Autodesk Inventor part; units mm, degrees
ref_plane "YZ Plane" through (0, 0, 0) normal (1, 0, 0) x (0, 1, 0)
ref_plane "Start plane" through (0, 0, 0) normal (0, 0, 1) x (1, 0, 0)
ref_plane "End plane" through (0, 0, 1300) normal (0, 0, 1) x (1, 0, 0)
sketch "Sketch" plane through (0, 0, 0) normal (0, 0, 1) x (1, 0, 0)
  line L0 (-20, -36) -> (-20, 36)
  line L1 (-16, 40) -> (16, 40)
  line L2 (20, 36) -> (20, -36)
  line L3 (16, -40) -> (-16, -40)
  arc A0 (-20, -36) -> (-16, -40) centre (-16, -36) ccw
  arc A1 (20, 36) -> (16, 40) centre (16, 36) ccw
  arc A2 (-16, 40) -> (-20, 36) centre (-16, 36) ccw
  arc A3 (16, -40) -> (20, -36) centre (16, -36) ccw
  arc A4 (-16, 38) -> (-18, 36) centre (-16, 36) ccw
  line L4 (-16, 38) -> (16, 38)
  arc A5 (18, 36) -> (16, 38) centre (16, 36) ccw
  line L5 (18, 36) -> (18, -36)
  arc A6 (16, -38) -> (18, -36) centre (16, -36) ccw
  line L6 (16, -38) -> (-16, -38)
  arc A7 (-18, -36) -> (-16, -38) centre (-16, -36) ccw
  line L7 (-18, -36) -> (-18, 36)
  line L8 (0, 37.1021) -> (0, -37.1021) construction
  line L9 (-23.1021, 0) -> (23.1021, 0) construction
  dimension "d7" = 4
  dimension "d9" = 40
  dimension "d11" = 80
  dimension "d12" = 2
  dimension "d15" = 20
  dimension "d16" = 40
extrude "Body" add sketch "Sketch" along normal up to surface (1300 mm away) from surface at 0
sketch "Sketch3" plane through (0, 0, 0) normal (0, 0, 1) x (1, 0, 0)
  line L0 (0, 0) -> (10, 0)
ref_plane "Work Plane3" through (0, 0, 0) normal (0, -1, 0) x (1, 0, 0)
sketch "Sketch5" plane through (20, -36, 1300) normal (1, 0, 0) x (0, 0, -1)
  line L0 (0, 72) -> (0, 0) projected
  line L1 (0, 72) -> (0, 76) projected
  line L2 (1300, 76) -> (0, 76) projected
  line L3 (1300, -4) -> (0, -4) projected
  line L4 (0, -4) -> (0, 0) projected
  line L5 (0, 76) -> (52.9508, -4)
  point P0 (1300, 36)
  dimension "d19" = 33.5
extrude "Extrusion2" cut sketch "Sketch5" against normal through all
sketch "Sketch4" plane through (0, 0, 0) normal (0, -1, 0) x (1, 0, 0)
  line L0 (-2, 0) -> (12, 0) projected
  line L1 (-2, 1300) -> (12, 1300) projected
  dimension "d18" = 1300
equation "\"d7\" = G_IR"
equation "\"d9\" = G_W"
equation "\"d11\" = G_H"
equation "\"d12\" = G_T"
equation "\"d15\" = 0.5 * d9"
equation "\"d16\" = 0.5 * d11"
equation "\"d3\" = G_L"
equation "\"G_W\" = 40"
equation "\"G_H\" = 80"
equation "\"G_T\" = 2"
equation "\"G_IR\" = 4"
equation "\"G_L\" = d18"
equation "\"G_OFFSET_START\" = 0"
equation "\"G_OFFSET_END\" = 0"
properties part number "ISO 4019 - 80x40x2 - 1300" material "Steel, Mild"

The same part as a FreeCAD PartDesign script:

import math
import FreeCAD as App
import Part
import Sketcher
from FreeCAD import Vector
Q = App.Units.Quantity


def add_polygon(sketch, points):
    """Adds a closed chain of lines whose ends are joined by coincident constraints."""
    first, n = sketch.GeometryCount, len(points)
    for a, b in zip(points, points[1:] + points[:1]):
        sketch.addGeometry(Part.LineSegment(App.Vector(*a, 0), App.Vector(*b, 0)), False)
    for i in range(n):
        sketch.addConstraint(Sketcher.Constraint("Coincident", first + i, 2, first + (i + 1) % n, 1))

doc = App.newDocument("Part")
params = doc.addObject("Spreadsheet::Sheet", "Params")
for row, (alias, value) in enumerate([
    ("sketch1_radius", "4 mm"),
    ("sketch1_radius2", "2 mm"),
    ("pad1_length", "1300 mm"),
    ("sketch2_width", "80 mm"),
], start=1):
    params.set(f"A{row}", alias)
    params.set(f"B{row}", "=" + value)
    params.setAlias(f"B{row}", alias)

body = doc.addObject("PartDesign::Body", "Body")

# Sketch on XY plane
sketch1 = body.newObject("Sketcher::SketchObject", "Sketch")
sketch1.AttachmentSupport = (doc.getObject("XY_Plane"), [""])
sketch1.MapMode = "FlatFace"
sketch1.addGeometry([
    Part.LineSegment(Vector(-20, 36, 0), Vector(-20, -36, 0)),  # 0
    Part.ArcOfCircle(Part.Circle(Vector(-16, -36, 0), Vector(0, 0, 1), 4), math.radians(180), math.radians(270)),  # 1
    Part.LineSegment(Vector(-16, -40, 0), Vector(16, -40, 0)),  # 2
    Part.ArcOfCircle(Part.Circle(Vector(16, -36, 0), Vector(0, 0, 1), 4), math.radians(-90), math.radians(0)),  # 3
    Part.LineSegment(Vector(20, -36, 0), Vector(20, 36, 0)),  # 4
    Part.ArcOfCircle(Part.Circle(Vector(16, 36, 0), Vector(0, 0, 1), 4), math.radians(0), math.radians(90)),  # 5
    Part.LineSegment(Vector(16, 40, 0), Vector(-16, 40, 0)),  # 6
    Part.ArcOfCircle(Part.Circle(Vector(-16, 36, 0), Vector(0, 0, 1), 4), math.radians(90), math.radians(180)),  # 7
    Part.ArcOfCircle(Part.Circle(Vector(-16, 36, 0), Vector(0, 0, 1), 2), math.radians(90), math.radians(180)),  # 8
    Part.LineSegment(Vector(-16, 38, 0), Vector(16, 38, 0)),  # 9
    Part.ArcOfCircle(Part.Circle(Vector(16, 36, 0), Vector(0, 0, 1), 2), math.radians(0), math.radians(90)),  # 10
    Part.LineSegment(Vector(18, 36, 0), Vector(18, -36, 0)),  # 11
    Part.ArcOfCircle(Part.Circle(Vector(16, -36, 0), Vector(0, 0, 1), 2), math.radians(-90), math.radians(0)),  # 12
    Part.LineSegment(Vector(16, -38, 0), Vector(-16, -38, 0)),  # 13
    Part.ArcOfCircle(Part.Circle(Vector(-16, -36, 0), Vector(0, 0, 1), 2), math.radians(180), math.radians(270)),  # 14
    Part.LineSegment(Vector(-18, -36, 0), Vector(-18, 36, 0)),  # 15
], False)
sketch1.addConstraint([
    Sketcher.Constraint("Tangent", 0, 2, 1, 1),
    Sketcher.Constraint("Tangent", 1, 2, 2, 1),
    Sketcher.Constraint("Tangent", 2, 2, 3, 1),
    Sketcher.Constraint("Tangent", 3, 2, 4, 1),
    Sketcher.Constraint("Tangent", 4, 2, 5, 1),
    Sketcher.Constraint("Tangent", 5, 2, 6, 1),
    Sketcher.Constraint("Tangent", 6, 2, 7, 1),
    Sketcher.Constraint("Tangent", 7, 2, 0, 1),
    Sketcher.Constraint("Tangent", 8, 1, 9, 1),
    Sketcher.Constraint("Tangent", 9, 2, 10, 2),
    Sketcher.Constraint("Tangent", 10, 1, 11, 1),
    Sketcher.Constraint("Tangent", 11, 2, 12, 2),
    Sketcher.Constraint("Tangent", 12, 1, 13, 1),
    Sketcher.Constraint("Tangent", 13, 2, 14, 2),
    Sketcher.Constraint("Tangent", 14, 1, 15, 1),
    Sketcher.Constraint("Tangent", 15, 2, 8, 2),
    Sketcher.Constraint("Vertical", 0),
    Sketcher.Constraint("Horizontal", 2),
    Sketcher.Constraint("Vertical", 4),
    Sketcher.Constraint("Horizontal", 6),
    Sketcher.Constraint("Horizontal", 9),
    Sketcher.Constraint("Vertical", 11),
    Sketcher.Constraint("Horizontal", 13),
    Sketcher.Constraint("Vertical", 15),
    Sketcher.Constraint("Coincident", 8, 3, 7, 3),
    Sketcher.Constraint("Coincident", 10, 3, 5, 3),
    Sketcher.Constraint("Coincident", 12, 3, 3, 3),
    Sketcher.Constraint("Equal", 1, 3),
    Sketcher.Constraint("Equal", 3, 5),
    Sketcher.Constraint("Equal", 5, 7),
    Sketcher.Constraint("Equal", 12, 14),
    Sketcher.Constraint("Symmetric", 1, 3, 5, 3, -1, 1),
    Sketcher.Constraint("Radius", 1, 4.0),
    Sketcher.Constraint("Radius", 8, 2.0),
    Sketcher.Constraint("DistanceX", 0, 2, -1, 1, 20.0),
    Sketcher.Constraint("DistanceY", 1, 2, -1, 1, 40.0),
])
sketch1.setExpression("Constraints[32]", "Params.sketch1_radius")
sketch1.setExpression("Constraints[33]", "Params.sketch1_radius2")
pad1 = body.newObject("PartDesign::Pad", "Pad")
pad1.Profile = sketch1
pad1.setExpression("Length", "Params.pad1_length")

# Sketch on YZ plane
sketch2 = body.newObject("Sketcher::SketchObject", "Sketch001")
sketch2.AttachmentSupport = (doc.getObject("YZ_Plane"), [""])
sketch2.MapMode = "FlatFace"
sketch2.AttachmentOffset = App.Placement(Vector(0, 0, 20), App.Rotation())
add_polygon(sketch2, [(40, 1300), (-40, 1300), (-40, 1247)])  # lines 0-2
sketch2.addConstraint([
    Sketcher.Constraint("Horizontal", 0),
    Sketcher.Constraint("Vertical", 1),
    Sketcher.Constraint("Angle", 2, Q("33.5 deg")),
    Sketcher.Constraint("DistanceX", 0, 2, 0, 1, 80.0),
    Sketcher.Constraint("DistanceX", 0, 2, -1, 1, 40.0),
    Sketcher.Constraint("DistanceY", -1, 1, 0, 2, 1300.0),
])
sketch2.setExpression("Constraints[6]", "Params.sketch2_width")
pocket1 = body.newObject("PartDesign::Pocket", "Pocket")
pocket1.Profile = sketch2
pocket1.Type = "ThroughAll"

doc.recompute()
